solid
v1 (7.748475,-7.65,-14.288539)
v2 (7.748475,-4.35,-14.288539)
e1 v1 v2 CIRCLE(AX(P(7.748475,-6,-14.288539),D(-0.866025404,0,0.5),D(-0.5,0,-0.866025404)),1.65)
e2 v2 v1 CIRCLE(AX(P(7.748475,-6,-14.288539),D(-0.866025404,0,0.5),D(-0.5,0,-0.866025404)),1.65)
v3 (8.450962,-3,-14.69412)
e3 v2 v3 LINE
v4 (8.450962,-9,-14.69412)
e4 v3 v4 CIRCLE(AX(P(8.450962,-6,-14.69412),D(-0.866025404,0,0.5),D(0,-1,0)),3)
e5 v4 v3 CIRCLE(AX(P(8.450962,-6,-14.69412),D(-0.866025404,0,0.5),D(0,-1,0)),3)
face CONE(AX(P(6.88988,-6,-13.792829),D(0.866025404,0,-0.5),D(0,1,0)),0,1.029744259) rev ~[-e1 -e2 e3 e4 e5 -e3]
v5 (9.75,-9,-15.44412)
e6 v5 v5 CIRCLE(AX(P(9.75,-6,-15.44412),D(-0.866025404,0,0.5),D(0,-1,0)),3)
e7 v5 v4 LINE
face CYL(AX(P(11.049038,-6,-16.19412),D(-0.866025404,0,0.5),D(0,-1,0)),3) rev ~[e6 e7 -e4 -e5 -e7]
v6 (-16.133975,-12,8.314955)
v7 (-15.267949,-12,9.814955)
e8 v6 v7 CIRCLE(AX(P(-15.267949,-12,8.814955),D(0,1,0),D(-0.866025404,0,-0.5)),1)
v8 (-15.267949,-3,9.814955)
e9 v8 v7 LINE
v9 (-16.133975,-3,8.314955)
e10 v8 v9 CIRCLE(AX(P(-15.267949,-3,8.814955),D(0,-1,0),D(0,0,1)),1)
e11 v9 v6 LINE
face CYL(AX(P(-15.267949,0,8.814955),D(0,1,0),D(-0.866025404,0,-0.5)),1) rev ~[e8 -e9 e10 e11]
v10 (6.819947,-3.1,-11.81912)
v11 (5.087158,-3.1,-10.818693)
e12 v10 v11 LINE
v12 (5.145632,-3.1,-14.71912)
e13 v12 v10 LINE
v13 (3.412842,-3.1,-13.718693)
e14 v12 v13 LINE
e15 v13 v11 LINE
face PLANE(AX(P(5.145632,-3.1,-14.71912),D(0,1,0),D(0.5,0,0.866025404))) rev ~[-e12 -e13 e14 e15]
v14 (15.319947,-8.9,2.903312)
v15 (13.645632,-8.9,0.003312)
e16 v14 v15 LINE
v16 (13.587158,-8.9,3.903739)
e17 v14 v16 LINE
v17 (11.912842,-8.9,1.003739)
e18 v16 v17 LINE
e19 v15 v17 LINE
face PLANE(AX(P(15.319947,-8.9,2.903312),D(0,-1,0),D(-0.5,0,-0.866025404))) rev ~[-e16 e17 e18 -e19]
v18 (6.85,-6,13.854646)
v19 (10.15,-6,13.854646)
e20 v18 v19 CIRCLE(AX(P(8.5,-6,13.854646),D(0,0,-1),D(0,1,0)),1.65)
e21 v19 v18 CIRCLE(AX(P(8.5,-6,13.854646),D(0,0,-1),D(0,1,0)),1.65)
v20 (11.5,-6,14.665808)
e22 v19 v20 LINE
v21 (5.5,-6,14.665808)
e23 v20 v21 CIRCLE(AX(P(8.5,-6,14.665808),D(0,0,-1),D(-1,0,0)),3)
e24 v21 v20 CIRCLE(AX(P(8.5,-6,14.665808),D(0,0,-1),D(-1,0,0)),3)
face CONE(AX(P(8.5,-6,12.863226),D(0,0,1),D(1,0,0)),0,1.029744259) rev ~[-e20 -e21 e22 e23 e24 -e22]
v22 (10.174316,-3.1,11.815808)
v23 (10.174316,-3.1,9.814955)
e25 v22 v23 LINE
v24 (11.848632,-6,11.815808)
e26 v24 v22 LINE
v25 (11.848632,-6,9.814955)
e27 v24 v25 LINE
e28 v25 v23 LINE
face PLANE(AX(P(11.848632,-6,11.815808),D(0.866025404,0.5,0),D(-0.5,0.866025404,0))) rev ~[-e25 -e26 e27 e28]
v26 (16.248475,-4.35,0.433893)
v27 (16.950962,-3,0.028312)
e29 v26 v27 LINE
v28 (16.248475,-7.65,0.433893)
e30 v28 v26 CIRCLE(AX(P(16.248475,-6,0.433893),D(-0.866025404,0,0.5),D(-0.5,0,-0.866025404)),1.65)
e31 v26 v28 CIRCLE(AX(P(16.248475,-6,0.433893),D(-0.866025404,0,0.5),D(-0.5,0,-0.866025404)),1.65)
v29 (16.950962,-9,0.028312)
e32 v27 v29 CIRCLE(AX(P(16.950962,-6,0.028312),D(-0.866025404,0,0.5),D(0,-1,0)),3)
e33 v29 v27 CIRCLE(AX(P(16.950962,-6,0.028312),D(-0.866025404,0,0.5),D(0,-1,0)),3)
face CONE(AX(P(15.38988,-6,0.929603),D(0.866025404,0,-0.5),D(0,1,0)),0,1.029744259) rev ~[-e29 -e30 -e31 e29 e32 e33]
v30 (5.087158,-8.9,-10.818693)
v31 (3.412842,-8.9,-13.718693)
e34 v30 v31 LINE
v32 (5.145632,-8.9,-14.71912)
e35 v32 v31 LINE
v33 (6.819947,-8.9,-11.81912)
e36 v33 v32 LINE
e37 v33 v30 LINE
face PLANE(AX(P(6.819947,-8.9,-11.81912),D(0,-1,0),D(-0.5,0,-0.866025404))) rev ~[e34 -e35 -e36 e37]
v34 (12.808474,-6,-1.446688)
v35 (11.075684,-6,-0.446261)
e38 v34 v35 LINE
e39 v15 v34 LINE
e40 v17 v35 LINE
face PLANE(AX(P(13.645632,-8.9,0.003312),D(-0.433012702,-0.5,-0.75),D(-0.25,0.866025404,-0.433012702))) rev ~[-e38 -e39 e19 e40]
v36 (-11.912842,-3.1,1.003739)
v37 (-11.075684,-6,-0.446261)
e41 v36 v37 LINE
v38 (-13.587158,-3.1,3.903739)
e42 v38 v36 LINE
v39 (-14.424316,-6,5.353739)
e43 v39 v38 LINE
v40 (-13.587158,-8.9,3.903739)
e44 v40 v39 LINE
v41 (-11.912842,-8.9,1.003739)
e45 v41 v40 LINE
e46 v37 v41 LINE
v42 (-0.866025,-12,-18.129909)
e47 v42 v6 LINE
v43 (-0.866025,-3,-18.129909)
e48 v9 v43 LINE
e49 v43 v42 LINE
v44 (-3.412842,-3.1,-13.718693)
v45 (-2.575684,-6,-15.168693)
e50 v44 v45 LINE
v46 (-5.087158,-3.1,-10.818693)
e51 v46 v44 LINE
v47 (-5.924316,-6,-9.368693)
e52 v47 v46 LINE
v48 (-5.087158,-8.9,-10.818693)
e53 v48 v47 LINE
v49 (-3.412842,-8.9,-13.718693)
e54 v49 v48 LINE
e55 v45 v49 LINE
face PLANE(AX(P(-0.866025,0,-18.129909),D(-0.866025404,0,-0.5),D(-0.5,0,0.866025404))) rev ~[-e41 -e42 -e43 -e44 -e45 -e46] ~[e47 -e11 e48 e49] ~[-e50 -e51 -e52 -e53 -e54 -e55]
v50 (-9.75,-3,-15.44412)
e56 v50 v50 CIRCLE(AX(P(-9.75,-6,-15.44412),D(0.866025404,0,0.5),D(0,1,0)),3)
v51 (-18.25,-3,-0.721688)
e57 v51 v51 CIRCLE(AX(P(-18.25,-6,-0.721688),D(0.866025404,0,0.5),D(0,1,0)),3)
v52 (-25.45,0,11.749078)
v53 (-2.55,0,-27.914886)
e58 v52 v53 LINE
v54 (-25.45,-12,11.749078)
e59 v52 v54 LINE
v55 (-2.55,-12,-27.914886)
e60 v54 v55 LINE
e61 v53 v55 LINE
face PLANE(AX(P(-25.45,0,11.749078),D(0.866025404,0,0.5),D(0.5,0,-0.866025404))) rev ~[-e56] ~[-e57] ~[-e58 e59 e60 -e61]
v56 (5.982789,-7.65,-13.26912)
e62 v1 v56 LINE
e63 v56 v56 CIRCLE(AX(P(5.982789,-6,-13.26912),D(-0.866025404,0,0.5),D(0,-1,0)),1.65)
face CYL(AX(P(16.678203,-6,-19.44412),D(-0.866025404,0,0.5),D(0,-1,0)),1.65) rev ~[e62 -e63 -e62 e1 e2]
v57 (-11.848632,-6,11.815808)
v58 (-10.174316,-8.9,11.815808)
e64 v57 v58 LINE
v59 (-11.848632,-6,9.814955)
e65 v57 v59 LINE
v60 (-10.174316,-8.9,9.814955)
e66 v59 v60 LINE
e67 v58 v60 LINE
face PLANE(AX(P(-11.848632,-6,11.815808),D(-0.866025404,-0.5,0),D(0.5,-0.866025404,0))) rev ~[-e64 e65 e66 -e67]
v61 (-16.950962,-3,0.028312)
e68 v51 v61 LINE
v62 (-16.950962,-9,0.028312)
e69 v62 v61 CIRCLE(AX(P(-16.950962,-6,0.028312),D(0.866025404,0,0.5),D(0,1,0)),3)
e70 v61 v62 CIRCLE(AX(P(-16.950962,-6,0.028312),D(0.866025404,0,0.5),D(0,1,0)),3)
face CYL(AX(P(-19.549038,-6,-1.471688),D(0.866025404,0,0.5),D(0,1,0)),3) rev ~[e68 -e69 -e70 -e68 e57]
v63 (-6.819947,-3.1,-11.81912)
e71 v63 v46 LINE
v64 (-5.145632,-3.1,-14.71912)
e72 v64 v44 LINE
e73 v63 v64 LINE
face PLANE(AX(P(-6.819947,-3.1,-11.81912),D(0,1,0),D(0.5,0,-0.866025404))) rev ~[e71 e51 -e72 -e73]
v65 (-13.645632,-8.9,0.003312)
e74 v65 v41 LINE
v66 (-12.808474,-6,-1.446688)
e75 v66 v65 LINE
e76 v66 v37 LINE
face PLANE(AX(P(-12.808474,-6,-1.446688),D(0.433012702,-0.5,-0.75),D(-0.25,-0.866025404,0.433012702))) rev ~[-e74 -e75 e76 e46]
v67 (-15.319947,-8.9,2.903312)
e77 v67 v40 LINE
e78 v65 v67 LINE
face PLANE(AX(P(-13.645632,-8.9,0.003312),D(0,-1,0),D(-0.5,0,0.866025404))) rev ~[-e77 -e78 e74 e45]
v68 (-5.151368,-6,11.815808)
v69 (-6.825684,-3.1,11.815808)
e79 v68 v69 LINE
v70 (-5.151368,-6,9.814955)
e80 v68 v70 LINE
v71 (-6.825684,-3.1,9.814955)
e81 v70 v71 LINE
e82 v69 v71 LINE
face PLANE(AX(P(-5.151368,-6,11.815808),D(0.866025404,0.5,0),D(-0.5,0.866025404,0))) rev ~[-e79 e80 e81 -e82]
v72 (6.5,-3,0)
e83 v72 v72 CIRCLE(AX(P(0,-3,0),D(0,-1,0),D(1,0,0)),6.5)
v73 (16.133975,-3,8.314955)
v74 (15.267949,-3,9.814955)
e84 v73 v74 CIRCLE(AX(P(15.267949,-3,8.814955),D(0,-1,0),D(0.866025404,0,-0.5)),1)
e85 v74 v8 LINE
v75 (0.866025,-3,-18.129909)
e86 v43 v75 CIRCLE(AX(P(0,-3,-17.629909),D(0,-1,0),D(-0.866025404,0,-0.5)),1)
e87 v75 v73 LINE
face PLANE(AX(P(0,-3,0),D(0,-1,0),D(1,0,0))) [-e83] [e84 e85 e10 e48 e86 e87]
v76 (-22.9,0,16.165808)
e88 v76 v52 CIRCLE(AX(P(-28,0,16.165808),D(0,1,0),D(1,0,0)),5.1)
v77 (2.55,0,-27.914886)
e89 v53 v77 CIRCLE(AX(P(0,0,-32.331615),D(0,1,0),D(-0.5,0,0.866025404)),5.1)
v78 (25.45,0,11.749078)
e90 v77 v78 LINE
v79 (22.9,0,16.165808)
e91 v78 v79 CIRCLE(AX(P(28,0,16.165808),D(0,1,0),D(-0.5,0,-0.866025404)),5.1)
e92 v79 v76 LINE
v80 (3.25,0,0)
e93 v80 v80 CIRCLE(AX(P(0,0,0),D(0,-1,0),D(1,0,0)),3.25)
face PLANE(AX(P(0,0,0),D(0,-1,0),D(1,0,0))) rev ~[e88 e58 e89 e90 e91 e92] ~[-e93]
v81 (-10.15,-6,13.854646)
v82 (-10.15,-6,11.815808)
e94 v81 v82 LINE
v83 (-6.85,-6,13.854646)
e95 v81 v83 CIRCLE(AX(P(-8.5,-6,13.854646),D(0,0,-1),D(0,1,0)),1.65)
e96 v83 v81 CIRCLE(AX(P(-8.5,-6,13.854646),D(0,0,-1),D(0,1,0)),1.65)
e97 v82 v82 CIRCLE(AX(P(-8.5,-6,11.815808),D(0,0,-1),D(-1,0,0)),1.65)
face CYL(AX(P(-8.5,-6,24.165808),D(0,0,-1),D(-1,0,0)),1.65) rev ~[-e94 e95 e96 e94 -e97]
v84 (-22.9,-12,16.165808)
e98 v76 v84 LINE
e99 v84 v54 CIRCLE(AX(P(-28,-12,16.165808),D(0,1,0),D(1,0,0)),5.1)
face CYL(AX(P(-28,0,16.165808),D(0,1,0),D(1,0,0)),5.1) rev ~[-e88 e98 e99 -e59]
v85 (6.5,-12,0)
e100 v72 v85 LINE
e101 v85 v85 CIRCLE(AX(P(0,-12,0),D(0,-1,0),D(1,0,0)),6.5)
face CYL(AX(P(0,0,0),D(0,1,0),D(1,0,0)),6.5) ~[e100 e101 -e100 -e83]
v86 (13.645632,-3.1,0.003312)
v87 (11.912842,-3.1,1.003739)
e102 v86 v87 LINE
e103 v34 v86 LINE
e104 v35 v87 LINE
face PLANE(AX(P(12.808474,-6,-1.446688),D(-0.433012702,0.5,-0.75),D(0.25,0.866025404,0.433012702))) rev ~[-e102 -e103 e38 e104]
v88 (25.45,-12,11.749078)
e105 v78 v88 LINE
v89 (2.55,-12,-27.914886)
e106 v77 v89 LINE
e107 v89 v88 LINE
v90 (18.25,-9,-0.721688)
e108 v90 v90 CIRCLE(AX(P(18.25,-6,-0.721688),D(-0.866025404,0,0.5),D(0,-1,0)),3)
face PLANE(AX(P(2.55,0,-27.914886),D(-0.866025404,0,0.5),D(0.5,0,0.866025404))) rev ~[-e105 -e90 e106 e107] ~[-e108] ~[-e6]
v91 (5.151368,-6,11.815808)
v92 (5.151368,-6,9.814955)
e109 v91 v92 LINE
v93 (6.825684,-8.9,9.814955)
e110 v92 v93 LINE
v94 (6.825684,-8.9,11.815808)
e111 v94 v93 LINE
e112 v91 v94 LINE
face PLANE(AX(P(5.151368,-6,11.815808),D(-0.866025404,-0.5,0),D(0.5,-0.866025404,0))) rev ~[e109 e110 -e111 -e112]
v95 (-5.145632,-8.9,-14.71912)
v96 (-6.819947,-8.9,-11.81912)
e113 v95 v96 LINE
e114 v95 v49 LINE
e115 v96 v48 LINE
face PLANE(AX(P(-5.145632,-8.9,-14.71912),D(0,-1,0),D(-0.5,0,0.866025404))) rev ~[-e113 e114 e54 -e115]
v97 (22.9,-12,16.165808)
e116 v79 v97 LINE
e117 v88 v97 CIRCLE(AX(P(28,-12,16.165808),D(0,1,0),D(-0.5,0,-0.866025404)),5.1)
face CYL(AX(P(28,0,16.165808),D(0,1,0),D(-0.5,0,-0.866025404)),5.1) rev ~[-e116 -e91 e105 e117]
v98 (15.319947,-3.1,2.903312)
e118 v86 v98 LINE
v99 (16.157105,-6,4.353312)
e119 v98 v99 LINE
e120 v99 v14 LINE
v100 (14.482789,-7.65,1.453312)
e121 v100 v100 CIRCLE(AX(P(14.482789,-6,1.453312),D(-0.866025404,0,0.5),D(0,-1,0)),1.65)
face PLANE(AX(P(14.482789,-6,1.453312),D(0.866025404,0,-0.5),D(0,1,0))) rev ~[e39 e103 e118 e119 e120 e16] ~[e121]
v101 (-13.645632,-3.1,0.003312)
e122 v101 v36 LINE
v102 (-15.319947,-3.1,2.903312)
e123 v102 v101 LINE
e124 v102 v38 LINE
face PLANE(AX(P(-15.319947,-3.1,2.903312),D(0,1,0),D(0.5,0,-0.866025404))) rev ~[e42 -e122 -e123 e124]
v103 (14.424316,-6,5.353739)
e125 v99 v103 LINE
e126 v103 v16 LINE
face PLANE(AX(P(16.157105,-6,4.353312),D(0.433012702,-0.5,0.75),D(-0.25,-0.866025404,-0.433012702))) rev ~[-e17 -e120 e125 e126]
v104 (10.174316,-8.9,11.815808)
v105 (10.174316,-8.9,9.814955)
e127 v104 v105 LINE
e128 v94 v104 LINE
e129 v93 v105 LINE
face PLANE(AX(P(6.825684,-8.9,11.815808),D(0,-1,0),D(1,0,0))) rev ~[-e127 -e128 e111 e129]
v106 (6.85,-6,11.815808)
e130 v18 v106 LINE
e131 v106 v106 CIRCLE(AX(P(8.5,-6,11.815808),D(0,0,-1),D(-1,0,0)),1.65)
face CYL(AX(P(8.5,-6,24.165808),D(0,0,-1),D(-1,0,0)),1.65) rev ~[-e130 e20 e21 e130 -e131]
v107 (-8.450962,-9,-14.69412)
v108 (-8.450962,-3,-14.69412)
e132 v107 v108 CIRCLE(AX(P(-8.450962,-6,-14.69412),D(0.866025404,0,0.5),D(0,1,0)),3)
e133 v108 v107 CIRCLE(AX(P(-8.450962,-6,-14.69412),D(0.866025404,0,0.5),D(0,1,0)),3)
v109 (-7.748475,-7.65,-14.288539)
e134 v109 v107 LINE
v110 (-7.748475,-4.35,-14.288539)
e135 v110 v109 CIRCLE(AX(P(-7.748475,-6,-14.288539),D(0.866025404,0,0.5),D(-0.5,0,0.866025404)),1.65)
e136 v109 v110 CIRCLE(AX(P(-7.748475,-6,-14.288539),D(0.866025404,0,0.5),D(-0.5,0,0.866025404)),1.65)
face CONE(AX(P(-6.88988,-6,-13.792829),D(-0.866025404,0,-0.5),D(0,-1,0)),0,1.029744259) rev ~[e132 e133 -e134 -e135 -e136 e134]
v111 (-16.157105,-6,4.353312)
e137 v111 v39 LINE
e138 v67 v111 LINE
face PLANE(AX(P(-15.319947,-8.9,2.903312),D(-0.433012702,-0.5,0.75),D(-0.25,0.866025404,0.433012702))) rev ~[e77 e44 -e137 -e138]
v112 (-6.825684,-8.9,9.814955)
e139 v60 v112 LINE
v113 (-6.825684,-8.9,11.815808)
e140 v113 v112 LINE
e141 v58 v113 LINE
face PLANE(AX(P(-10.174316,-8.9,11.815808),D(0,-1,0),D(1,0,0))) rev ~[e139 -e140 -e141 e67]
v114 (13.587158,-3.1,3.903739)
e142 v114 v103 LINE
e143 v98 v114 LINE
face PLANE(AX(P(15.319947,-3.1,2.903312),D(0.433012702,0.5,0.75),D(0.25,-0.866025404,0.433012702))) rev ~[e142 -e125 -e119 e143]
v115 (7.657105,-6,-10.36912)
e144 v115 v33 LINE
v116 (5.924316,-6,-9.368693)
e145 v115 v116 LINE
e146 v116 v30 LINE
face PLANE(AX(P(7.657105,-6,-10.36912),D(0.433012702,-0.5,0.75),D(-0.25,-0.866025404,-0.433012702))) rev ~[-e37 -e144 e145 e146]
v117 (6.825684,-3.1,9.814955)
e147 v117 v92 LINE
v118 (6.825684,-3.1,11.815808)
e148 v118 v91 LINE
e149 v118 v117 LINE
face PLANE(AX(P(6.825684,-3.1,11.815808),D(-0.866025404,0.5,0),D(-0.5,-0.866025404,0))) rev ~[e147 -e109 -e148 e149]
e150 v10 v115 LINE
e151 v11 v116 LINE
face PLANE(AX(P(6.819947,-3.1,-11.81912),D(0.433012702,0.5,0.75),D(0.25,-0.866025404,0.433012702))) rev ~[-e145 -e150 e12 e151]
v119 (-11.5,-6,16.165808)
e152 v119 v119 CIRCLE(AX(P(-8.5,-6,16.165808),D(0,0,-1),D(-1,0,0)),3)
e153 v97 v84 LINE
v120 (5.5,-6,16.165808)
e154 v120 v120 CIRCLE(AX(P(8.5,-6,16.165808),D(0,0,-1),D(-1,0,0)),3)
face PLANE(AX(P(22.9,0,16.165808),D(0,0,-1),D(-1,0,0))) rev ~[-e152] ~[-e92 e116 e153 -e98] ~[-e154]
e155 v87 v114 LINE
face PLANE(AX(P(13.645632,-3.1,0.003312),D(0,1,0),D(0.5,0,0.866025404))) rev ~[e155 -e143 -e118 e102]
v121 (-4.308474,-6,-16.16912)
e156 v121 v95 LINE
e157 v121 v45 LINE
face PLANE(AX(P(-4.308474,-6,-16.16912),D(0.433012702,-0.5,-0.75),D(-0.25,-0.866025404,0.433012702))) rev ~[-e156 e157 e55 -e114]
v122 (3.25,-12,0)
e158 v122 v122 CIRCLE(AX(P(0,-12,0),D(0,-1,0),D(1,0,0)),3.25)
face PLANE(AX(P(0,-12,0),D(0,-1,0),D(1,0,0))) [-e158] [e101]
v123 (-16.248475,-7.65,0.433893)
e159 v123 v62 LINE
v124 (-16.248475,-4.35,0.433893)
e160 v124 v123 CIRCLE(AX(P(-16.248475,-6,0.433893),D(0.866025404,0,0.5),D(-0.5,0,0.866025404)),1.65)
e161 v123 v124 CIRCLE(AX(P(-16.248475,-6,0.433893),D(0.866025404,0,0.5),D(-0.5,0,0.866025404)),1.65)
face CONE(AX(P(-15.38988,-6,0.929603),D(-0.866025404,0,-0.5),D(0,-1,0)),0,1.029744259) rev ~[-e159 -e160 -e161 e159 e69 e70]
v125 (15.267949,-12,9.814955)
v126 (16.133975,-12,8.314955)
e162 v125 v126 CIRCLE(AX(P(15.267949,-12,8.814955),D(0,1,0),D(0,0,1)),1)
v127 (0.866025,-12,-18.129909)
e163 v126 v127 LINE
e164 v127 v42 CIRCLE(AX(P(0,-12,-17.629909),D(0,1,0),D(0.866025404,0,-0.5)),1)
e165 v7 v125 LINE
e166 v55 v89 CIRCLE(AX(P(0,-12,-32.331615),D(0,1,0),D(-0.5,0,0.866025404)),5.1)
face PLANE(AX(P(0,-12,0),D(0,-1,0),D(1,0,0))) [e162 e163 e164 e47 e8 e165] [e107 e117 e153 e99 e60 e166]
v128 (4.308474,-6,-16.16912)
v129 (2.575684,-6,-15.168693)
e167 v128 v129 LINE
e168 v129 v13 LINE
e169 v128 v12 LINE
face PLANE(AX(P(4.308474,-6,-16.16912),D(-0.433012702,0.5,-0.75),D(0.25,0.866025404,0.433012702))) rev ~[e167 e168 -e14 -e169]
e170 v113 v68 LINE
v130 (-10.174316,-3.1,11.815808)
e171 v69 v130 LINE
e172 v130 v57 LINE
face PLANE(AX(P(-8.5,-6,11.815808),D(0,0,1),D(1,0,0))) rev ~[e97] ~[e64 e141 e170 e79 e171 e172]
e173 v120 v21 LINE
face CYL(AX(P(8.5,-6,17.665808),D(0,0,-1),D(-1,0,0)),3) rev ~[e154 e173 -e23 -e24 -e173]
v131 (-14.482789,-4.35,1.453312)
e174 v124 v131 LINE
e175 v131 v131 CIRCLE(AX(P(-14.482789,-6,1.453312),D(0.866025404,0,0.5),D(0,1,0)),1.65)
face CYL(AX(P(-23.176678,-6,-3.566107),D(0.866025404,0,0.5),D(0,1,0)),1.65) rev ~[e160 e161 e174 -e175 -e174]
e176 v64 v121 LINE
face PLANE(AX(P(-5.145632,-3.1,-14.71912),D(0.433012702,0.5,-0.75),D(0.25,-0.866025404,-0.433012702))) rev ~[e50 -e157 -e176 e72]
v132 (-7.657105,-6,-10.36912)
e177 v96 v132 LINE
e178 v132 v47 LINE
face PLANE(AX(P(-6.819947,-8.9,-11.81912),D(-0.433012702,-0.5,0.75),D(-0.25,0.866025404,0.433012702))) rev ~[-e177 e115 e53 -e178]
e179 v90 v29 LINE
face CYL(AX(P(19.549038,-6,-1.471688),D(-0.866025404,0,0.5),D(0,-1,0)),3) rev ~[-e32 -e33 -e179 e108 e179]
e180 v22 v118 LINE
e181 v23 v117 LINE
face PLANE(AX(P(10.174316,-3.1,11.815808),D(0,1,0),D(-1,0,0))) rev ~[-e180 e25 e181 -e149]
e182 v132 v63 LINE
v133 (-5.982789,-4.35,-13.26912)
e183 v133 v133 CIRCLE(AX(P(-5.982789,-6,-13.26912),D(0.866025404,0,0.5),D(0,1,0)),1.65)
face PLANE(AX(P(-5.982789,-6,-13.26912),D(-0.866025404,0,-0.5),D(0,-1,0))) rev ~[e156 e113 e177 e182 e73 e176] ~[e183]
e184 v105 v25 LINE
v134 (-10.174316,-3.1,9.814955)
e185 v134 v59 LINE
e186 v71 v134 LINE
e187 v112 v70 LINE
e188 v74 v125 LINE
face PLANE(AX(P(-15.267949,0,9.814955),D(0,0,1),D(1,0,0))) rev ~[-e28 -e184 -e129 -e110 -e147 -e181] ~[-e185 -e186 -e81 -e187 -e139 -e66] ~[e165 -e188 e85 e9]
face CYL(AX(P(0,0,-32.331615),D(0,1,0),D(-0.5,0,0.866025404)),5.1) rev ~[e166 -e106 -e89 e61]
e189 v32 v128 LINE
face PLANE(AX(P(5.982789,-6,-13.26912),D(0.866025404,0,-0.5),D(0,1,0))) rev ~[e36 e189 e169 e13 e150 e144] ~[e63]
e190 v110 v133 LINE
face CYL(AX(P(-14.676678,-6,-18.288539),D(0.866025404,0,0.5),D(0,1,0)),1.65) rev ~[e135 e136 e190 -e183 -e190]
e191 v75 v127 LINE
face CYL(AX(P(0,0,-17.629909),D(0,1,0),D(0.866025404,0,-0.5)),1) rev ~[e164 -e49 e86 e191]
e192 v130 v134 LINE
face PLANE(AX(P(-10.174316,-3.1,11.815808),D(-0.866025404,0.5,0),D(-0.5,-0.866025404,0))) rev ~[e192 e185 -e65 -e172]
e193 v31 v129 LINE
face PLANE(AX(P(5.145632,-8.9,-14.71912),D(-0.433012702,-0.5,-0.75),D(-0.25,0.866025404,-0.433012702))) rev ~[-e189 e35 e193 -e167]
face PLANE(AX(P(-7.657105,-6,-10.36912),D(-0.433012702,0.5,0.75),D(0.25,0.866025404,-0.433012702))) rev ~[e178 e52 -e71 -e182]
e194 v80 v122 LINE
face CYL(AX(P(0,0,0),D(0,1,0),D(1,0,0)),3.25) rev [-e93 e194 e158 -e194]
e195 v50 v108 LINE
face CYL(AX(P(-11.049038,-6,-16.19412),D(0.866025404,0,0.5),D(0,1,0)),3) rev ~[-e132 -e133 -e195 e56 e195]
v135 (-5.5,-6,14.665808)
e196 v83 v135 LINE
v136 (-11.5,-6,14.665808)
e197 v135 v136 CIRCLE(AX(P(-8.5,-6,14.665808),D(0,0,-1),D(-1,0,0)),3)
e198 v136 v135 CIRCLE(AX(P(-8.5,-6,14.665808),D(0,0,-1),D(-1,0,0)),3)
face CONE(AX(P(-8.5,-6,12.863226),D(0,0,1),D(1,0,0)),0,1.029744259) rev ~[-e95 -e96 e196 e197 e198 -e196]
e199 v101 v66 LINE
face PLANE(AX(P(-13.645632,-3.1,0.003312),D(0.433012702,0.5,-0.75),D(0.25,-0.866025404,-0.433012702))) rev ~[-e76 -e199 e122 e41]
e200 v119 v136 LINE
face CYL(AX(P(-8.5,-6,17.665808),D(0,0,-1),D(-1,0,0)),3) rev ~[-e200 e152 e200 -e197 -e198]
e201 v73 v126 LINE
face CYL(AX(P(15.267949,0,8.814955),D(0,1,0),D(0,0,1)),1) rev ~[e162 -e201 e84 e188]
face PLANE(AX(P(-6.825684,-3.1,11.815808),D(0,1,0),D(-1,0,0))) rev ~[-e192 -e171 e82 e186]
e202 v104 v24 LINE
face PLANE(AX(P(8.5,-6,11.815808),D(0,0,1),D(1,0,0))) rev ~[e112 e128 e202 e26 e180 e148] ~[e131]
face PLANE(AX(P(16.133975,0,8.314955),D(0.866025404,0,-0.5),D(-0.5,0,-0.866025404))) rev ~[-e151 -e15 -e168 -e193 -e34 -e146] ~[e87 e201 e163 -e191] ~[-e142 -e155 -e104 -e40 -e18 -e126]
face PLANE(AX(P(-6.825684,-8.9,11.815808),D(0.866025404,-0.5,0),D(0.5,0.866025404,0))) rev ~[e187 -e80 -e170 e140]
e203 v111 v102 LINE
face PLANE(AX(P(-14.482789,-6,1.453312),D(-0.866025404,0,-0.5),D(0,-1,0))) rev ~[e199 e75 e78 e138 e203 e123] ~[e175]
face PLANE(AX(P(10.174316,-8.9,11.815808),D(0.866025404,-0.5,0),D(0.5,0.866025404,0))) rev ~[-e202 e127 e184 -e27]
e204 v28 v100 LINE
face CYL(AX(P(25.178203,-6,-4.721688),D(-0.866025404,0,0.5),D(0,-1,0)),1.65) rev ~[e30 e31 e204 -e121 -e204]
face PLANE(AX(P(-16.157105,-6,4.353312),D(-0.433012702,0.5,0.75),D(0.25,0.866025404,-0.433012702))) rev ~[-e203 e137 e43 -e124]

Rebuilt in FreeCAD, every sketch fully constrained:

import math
import FreeCAD as App
import Part
import Sketcher
Q = App.Units.Quantity

doc = App.newDocument("Part")
params = doc.addObject("Spreadsheet::Sheet", "Params")
for row, (alias, value) in enumerate([
    ("sketch1_radius", "1 mm"),
    ("sketch1_radius2", "5.1 mm"),
    ("sketch1_width", "45.8 mm"),
    ("sketch1_length", "45.8 mm"),
    ("pad1_length", "12 mm"),
    ("sketch2_diameter", "13 mm"),
    ("sketch2_diameter2", "6.5 mm"),
    ("pad2_length", "12 mm"),
    ("sketch3_diameter", "13 mm"),
    ("sketch3_radius", "1 mm"),
    ("pad3_length", "3 mm"),
    ("pocket1_length", "3.65 mm"),
    ("sketch5_diameter", "3.3 mm"),
    ("hole_diameter", "3.3 mm"),
    ("hole_depth", "8 mm"),
    ("sketch6_diameter", "6 mm"),
    ("hole2_diameter", "6 mm"),
    ("hole2_depth", "1.5 mm"),
    ("pocket2_length", "3.65 mm"),
    ("sketch8_diameter", "6 mm"),
    ("hole3_diameter", "6 mm"),
    ("hole3_depth", "1.5 mm"),
    ("sketch9_diameter", "3.3 mm"),
    ("hole4_diameter", "3.3 mm"),
    ("hole4_depth", "8 mm"),
    ("pocket3_length", "3.65 mm"),
    ("sketch11_diameter", "3.3 mm"),
    ("hole5_diameter", "3.3 mm"),
    ("hole5_depth", "8 mm"),
    ("sketch12_diameter", "6 mm"),
    ("hole6_diameter", "6 mm"),
    ("hole6_depth", "1.5 mm"),
], start=1):
    params.set(f"A{row}", alias)
    params.set(f"B{row}", "=" + value)
    params.setAlias(f"B{row}", alias)

body = doc.addObject("PartDesign::Body", "Body")

# Sketch on XZ plane
sketch1 = body.newObject("Sketcher::SketchObject", "Sketch")
sketch1.AttachmentSupport = (doc.getObject("XZ_Plane"), [""])
sketch1.MapMode = "FlatFace"
sketch1.addGeometry([
    Part.ArcOfCircle(Part.Circle(App.Vector(28, 16.2, 0), App.Vector(0, 0, 1), 5.1), math.radians(180), math.radians(240)),  # 0
    Part.LineSegment(App.Vector(22.9, 16.2, 0), App.Vector(-22.9, 16.2, 0)),  # 1
    Part.ArcOfCircle(Part.Circle(App.Vector(-28, 16.2, 0), App.Vector(0, 0, 1), 5.1), math.radians(-60), math.radians(0)),  # 2
    Part.LineSegment(App.Vector(-25.4, 11.7, 0), App.Vector(-2.5, -27.9, 0)),  # 3
    Part.ArcOfCircle(Part.Circle(App.Vector(0, -32.3, 0), App.Vector(0, 0, 1), 5.1), math.radians(60), math.radians(120)),  # 4
    Part.LineSegment(App.Vector(2.5, -27.9, 0), App.Vector(25.4, 11.7, 0)),  # 5
    Part.LineSegment(App.Vector(-15.3, 9.8, 0), App.Vector(15.3, 9.8, 0)),  # 6
    Part.ArcOfCircle(Part.Circle(App.Vector(15.3, 8.8, 0), App.Vector(0, 0, 1), 1), math.radians(-30), math.radians(90)),  # 7
    Part.LineSegment(App.Vector(16.1, 8.3, 0), App.Vector(0.9, -18.1, 0)),  # 8
    Part.ArcOfCircle(Part.Circle(App.Vector(0, -17.6, 0), App.Vector(0, 0, 1), 1), math.radians(-150), math.radians(-30)),  # 9
    Part.LineSegment(App.Vector(-0.9, -18.1, 0), App.Vector(-16.1, 8.3, 0)),  # 10
    Part.ArcOfCircle(Part.Circle(App.Vector(-15.3, 8.8, 0), App.Vector(0, 0, 1), 1), math.radians(90), math.radians(210)),  # 11
], False)
sketch1.addConstraint([
    Sketcher.Constraint("Coincident", 0, 1, 1, 1),
    Sketcher.Constraint("Coincident", 1, 2, 2, 2),
    Sketcher.Constraint("Coincident", 2, 1, 3, 1),
    Sketcher.Constraint("Coincident", 3, 2, 4, 2),
    Sketcher.Constraint("Coincident", 4, 1, 5, 1),
    Sketcher.Constraint("Coincident", 5, 2, 0, 2),
    Sketcher.Constraint("Tangent", 6, 2, 7, 2),
    Sketcher.Constraint("Tangent", 7, 1, 8, 1),
    Sketcher.Constraint("Tangent", 8, 2, 9, 2),
    Sketcher.Constraint("Tangent", 9, 1, 10, 1),
    Sketcher.Constraint("Tangent", 10, 2, 11, 2),
    Sketcher.Constraint("Tangent", 11, 1, 6, 1),
    Sketcher.Constraint("Horizontal", 1),
    Sketcher.Constraint("Horizontal", 6),
    Sketcher.Constraint("Equal", 0, 2),
    Sketcher.Constraint("Equal", 2, 4),
    Sketcher.Constraint("Equal", 7, 9),
    Sketcher.Constraint("Equal", 9, 11),
    Sketcher.Constraint("Symmetric", 0, 3, 2, 3, -2),
    Sketcher.Constraint("Symmetric", 3, 2, 4, 1, -2),
    Sketcher.Constraint("Symmetric", 8, 2, 9, 1, -2),
    Sketcher.Constraint("Parallel", 5, 8),
    Sketcher.Constraint("Parallel", 3, 10),
    Sketcher.Constraint("Horizontal", 2, 3, 0, 1),
    Sketcher.Constraint("Radius", 7, Q("1 mm")),
    Sketcher.Constraint("Radius", 0, Q("5.1 mm")),
    Sketcher.Constraint("Angle", 3, Q("-60 deg")),
    Sketcher.Constraint("DistanceX", 1, 2, 1, 1, Q("45.8 mm")),
    Sketcher.Constraint("Distance", 3, Q("45.8 mm")),
    Sketcher.Constraint("DistanceX", 3, 2, 4, 1, Q("5.1 mm")),
    Sketcher.Constraint("DistanceX", 6, 1, 6, 2, Q("30.535898 mm")),
    Sketcher.Constraint("DistanceY", 9, 3, -1, 1, Q("17.629909 mm")),
    Sketcher.Constraint("DistanceY", 4, 3, 7, 3, Q("41.14657 mm")),
])
sketch1.setExpression("Constraints[24]", "Params.sketch1_radius")
sketch1.setExpression("Constraints[25]", "Params.sketch1_radius2")
sketch1.setExpression("Constraints[27]", "Params.sketch1_width")
sketch1.setExpression("Constraints[28]", "Params.sketch1_length")
pad1 = body.newObject("PartDesign::Pad", "Pad")
pad1.Profile = sketch1
pad1.setExpression("Length", "Params.pad1_length")
body2 = doc.addObject("PartDesign::Body", "Body001")

# Sketch on XZ plane
sketch2 = body2.newObject("Sketcher::SketchObject", "Sketch001")
sketch2.AttachmentSupport = (doc.getObject("XZ_Plane001"), [""])
sketch2.MapMode = "FlatFace"
sketch2.addGeometry([
    Part.Circle(App.Vector(0, 0, 0), App.Vector(0, 0, 1), 6.5),
    Part.Circle(App.Vector(0, 0, 0), App.Vector(0, 0, 1), 3.2),
], False)
sketch2.addConstraint([
    Sketcher.Constraint("Coincident", 0, 3, -1, 1),
    Sketcher.Constraint("Coincident", 1, 3, -1, 1),
    Sketcher.Constraint("Diameter", 0, Q("13 mm")),
    Sketcher.Constraint("Diameter", 1, Q("6.5 mm")),
])
sketch2.setExpression("Constraints[2]", "Params.sketch2_diameter")
sketch2.setExpression("Constraints[3]", "Params.sketch2_diameter2")
pad2 = body2.newObject("PartDesign::Pad", "Pad001")
pad2.Profile = sketch2
pad2.setExpression("Length", "Params.pad2_length")
body.AllowCompound = True
doc.recompute()

boolean = body.newObject("PartDesign::Boolean", "Boolean")
boolean.Type = "Fuse"
boolean.addObjects([body2])

# Sketch on XZ plane
sketch3 = body.newObject("Sketcher::SketchObject", "Sketch002")
sketch3.AttachmentSupport = (doc.getObject("XZ_Plane"), [""])
sketch3.MapMode = "FlatFace"
sketch3.addGeometry([
    Part.LineSegment(App.Vector(0.9, -18.1, 0), App.Vector(16.1, 8.3, 0)),  # 0
    Part.ArcOfCircle(Part.Circle(App.Vector(15.3, 8.8, 0), App.Vector(0, 0, 1), 1), math.radians(-30), math.radians(90)),  # 1
    Part.LineSegment(App.Vector(15.3, 9.8, 0), App.Vector(-15.3, 9.8, 0)),  # 2
    Part.ArcOfCircle(Part.Circle(App.Vector(-15.3, 8.8, 0), App.Vector(0, 0, 1), 1), math.radians(90), math.radians(210)),  # 3
    Part.LineSegment(App.Vector(-16.1, 8.3, 0), App.Vector(-0.9, -18.1, 0)),  # 4
    Part.ArcOfCircle(Part.Circle(App.Vector(0, -17.6, 0), App.Vector(0, 0, 1), 1), math.radians(-150), math.radians(-30)),  # 5
    Part.Circle(App.Vector(0, 0, 0), App.Vector(0, 0, 1), 6.5),  # 6
], False)
sketch3.addConstraint([
    Sketcher.Constraint("Tangent", 0, 2, 1, 1),
    Sketcher.Constraint("Tangent", 1, 2, 2, 1),
    Sketcher.Constraint("Tangent", 2, 2, 3, 1),
    Sketcher.Constraint("Tangent", 3, 2, 4, 1),
    Sketcher.Constraint("Tangent", 4, 2, 5, 1),
    Sketcher.Constraint("Tangent", 5, 2, 0, 1),
    Sketcher.Constraint("Horizontal", 2),
    Sketcher.Constraint("Coincident", 6, 3, -1, 1),
    Sketcher.Constraint("Equal", 1, 3),
    Sketcher.Constraint("Equal", 3, 5),
    Sketcher.Constraint("Symmetric", 0, 2, 3, 2, -2),
    Sketcher.Constraint("Diameter", 6, Q("13 mm")),
    Sketcher.Constraint("Radius", 1, Q("1 mm")),
    Sketcher.Constraint("Angle", 0, Q("60 deg")),
    Sketcher.Constraint("DistanceX", 2, 2, 2, 1, Q("30.535898 mm")),
    Sketcher.Constraint("DistanceY", 5, 3, -1, 1, Q("17.629909 mm")),
])
sketch3.setExpression("Constraints[11]", "Params.sketch3_diameter")
sketch3.setExpression("Constraints[12]", "Params.sketch3_radius")
pad3 = body.newObject("PartDesign::Pad", "Pad002")
pad3.Profile = sketch3
pad3.setExpression("Length", "Params.pad3_length")

# Sketch on XY plane
sketch4 = body.newObject("Sketcher::SketchObject", "Sketch003")
sketch4.AttachmentSupport = (doc.getObject("XY_Plane"), [""])
sketch4.MapMode = "FlatFace"
sketch4.AttachmentOffset = App.Placement(App.Vector(0, 0, 11.815808), App.Rotation())
sketch4.addGeometry([
    Part.LineSegment(App.Vector(-6.8, -8.9, 0), App.Vector(-5.2, -6, 0)),  # 0
    Part.LineSegment(App.Vector(-5.2, -6, 0), App.Vector(-6.8, -3.1, 0)),  # 1
    Part.LineSegment(App.Vector(-6.8, -3.1, 0), App.Vector(-10.2, -3.1, 0)),  # 2
    Part.LineSegment(App.Vector(-10.2, -3.1, 0), App.Vector(-11.8, -6, 0)),  # 3
    Part.LineSegment(App.Vector(-11.8, -6, 0), App.Vector(-10.2, -8.9, 0)),  # 4
    Part.LineSegment(App.Vector(-10.2, -8.9, 0), App.Vector(-6.8, -8.9, 0)),  # 5
    Part.LineSegment(App.Vector(10.2, -8.9, 0), App.Vector(11.8, -6, 0)),  # 6
    Part.LineSegment(App.Vector(11.8, -6, 0), App.Vector(10.2, -3.1, 0)),  # 7
    Part.LineSegment(App.Vector(10.2, -3.1, 0), App.Vector(6.8, -3.1, 0)),  # 8
    Part.LineSegment(App.Vector(6.8, -3.1, 0), App.Vector(5.2, -6, 0)),  # 9
    Part.LineSegment(App.Vector(5.2, -6, 0), App.Vector(6.8, -8.9, 0)),  # 10
    Part.LineSegment(App.Vector(6.8, -8.9, 0), App.Vector(10.2, -8.9, 0)),  # 11
], False)
sketch4.addConstraint([
    Sketcher.Constraint("Coincident", 0, 2, 1, 1),
    Sketcher.Constraint("Coincident", 1, 2, 2, 1),
    Sketcher.Constraint("Coincident", 2, 2, 3, 1),
    Sketcher.Constraint("Coincident", 3, 2, 4, 1),
    Sketcher.Constraint("Coincident", 4, 2, 5, 1),
    Sketcher.Constraint("Coincident", 5, 2, 0, 1),
    Sketcher.Constraint("Coincident", 6, 2, 7, 1),
    Sketcher.Constraint("Coincident", 7, 2, 8, 1),
    Sketcher.Constraint("Coincident", 8, 2, 9, 1),
    Sketcher.Constraint("Coincident", 9, 2, 10, 1),
    Sketcher.Constraint("Coincident", 10, 2, 11, 1),
    Sketcher.Constraint("Coincident", 11, 2, 6, 1),
    Sketcher.Constraint("Horizontal", 2),
    Sketcher.Constraint("Horizontal", 5),
    Sketcher.Constraint("Horizontal", 8),
    Sketcher.Constraint("Horizontal", 11),
    Sketcher.Constraint("Symmetric", 3, 2, 6, 2, -2),
    Sketcher.Constraint("Symmetric", 2, 2, 7, 2, -2),
    Sketcher.Constraint("Symmetric", 0, 2, 9, 2, -2),
    Sketcher.Constraint("Symmetric", 5, 2, 10, 2, -2),
    Sketcher.Constraint("Parallel", 0, 3),
    Sketcher.Constraint("Parallel", 1, 4),
    Sketcher.Constraint("Parallel", 3, 6),
    Sketcher.Constraint("Parallel", 4, 7),
    Sketcher.Constraint("Parallel", 6, 9),
    Sketcher.Constraint("Horizontal", 0, 2, 3, 2),
    Sketcher.Constraint("Vertical", 2, 2, 4, 2),
    Sketcher.Constraint("Angle", 0, Q("60 deg")),
    Sketcher.Constraint("DistanceY", 0, 2, -1, 1, Q("6 mm")),
    Sketcher.Constraint("DistanceX", 0, 2, 6, 2, Q("17 mm")),
    Sketcher.Constraint("DistanceY", 1, 2, -1, 1, Q("3.1 mm")),
    Sketcher.Constraint("DistanceX", 2, 2, 2, 1, Q("3.348632 mm")),
])
pocket1 = body.newObject("PartDesign::Pocket", "Pocket")
pocket1.Profile = sketch4
pocket1.setExpression("Length", "Params.pocket1_length")

# Sketch on XY plane
sketch5 = body.newObject("Sketcher::SketchObject", "Sketch004")
sketch5.AttachmentSupport = (doc.getObject("XY_Plane"), [""])
sketch5.MapMode = "FlatFace"
sketch5.AttachmentOffset = App.Placement(App.Vector(0, 0, 16.165808), App.Rotation())
sketch5.addGeometry([
    Part.Circle(App.Vector(8.5, -6, 0), App.Vector(0, 0, 1), 1.6),
    Part.Circle(App.Vector(-8.5, -6, 0), App.Vector(0, 0, 1), 1.6),
], False)
sketch5.addConstraint([
    Sketcher.Constraint("Equal", 0, 1),
    Sketcher.Constraint("Symmetric", 0, 3, 1, 3, -2),
    Sketcher.Constraint("Diameter", 0, Q("3.3 mm")),
    Sketcher.Constraint("DistanceY", 0, 3, -1, 1, Q("6 mm")),
    Sketcher.Constraint("DistanceX", 1, 3, 0, 3, Q("17 mm")),
])
sketch5.setExpression("Constraints[2]", "Params.sketch5_diameter")
doc.recompute()
hole = body.newObject("PartDesign::Hole", "Hole")
hole.Profile = sketch5
hole.ThreadType = "None"
hole.setExpression("Diameter", "Params.hole_diameter")
hole.DepthType = "Dimension"
hole.setExpression("Depth", "Params.hole_depth")
hole.DrillPoint = "Angled"
hole.DrillPointAngle = 118

# Sketch on XY plane
sketch6 = body.newObject("Sketcher::SketchObject", "Sketch005")
sketch6.AttachmentSupport = (doc.getObject("XY_Plane"), [""])
sketch6.MapMode = "FlatFace"
sketch6.AttachmentOffset = App.Placement(App.Vector(0, 0, 16.165808), App.Rotation())
sketch6.addGeometry([
    Part.Circle(App.Vector(8.5, -6, 0), App.Vector(0, 0, 1), 3),
    Part.Circle(App.Vector(-8.5, -6, 0), App.Vector(0, 0, 1), 3),
], False)
sketch6.addConstraint([
    Sketcher.Constraint("Equal", 0, 1),
    Sketcher.Constraint("Symmetric", 0, 3, 1, 3, -2),
    Sketcher.Constraint("Diameter", 0, Q("6 mm")),
    Sketcher.Constraint("DistanceY", 0, 3, -1, 1, Q("6 mm")),
    Sketcher.Constraint("DistanceX", 1, 3, 0, 3, Q("17 mm")),
])
sketch6.setExpression("Constraints[2]", "Params.sketch6_diameter")
doc.recompute()
hole2 = body.newObject("PartDesign::Hole", "Hole001")
hole2.Profile = sketch6
hole2.ThreadType = "None"
hole2.setExpression("Diameter", "Params.hole2_diameter")
hole2.DepthType = "Dimension"
hole2.setExpression("Depth", "Params.hole2_depth")
hole2.DrillPoint = "Angled"
hole2.DrillPointAngle = 118

# Sketch on an angled plane
sketch7 = body.newObject("Sketcher::SketchObject", "Sketch006")
sketch7.Placement = App.Placement(App.Vector(-10.232789, 0, -5.907904), App.Rotation(App.Vector(0, -1, 0), App.Vector(-0.5, 0, 0.866025404), App.Vector(-0.866025404, 0, -0.5), "ZXY"))
sketch7.addGeometry([
    Part.LineSegment(App.Vector(3.1, 6.8, 0), App.Vector(6, 5.2, 0)),  # 0
    Part.LineSegment(App.Vector(6, 5.2, 0), App.Vector(8.9, 6.8, 0)),  # 1
    Part.LineSegment(App.Vector(8.9, 6.8, 0), App.Vector(8.9, 10.2, 0)),  # 2
    Part.LineSegment(App.Vector(8.9, 10.2, 0), App.Vector(6, 11.8, 0)),  # 3
    Part.LineSegment(App.Vector(6, 11.8, 0), App.Vector(3.1, 10.2, 0)),  # 4
    Part.LineSegment(App.Vector(3.1, 10.2, 0), App.Vector(3.1, 6.8, 0)),  # 5
    Part.LineSegment(App.Vector(3.1, -10.2, 0), App.Vector(6, -11.8, 0)),  # 6
    Part.LineSegment(App.Vector(6, -11.8, 0), App.Vector(8.9, -10.2, 0)),  # 7
    Part.LineSegment(App.Vector(8.9, -10.2, 0), App.Vector(8.9, -6.8, 0)),  # 8
    Part.LineSegment(App.Vector(8.9, -6.8, 0), App.Vector(6, -5.2, 0)),  # 9
    Part.LineSegment(App.Vector(6, -5.2, 0), App.Vector(3.1, -6.8, 0)),  # 10
    Part.LineSegment(App.Vector(3.1, -6.8, 0), App.Vector(3.1, -10.2, 0)),  # 11
], False)
sketch7.addConstraint([
    Sketcher.Constraint("Coincident", 0, 2, 1, 1),
    Sketcher.Constraint("Coincident", 1, 2, 2, 1),
    Sketcher.Constraint("Coincident", 2, 2, 3, 1),
    Sketcher.Constraint("Coincident", 3, 2, 4, 1),
    Sketcher.Constraint("Coincident", 4, 2, 5, 1),
    Sketcher.Constraint("Coincident", 5, 2, 0, 1),
    Sketcher.Constraint("Coincident", 6, 2, 7, 1),
    Sketcher.Constraint("Coincident", 7, 2, 8, 1),
    Sketcher.Constraint("Coincident", 8, 2, 9, 1),
    Sketcher.Constraint("Coincident", 9, 2, 10, 1),
    Sketcher.Constraint("Coincident", 10, 2, 11, 1),
    Sketcher.Constraint("Coincident", 11, 2, 6, 1),
    Sketcher.Constraint("Vertical", 2),
    Sketcher.Constraint("Vertical", 5),
    Sketcher.Constraint("Vertical", 8),
    Sketcher.Constraint("Vertical", 11),
    Sketcher.Constraint("Symmetric", 3, 2, 6, 2, -1),
    Sketcher.Constraint("Symmetric", 2, 2, 7, 2, -1),
    Sketcher.Constraint("Symmetric", 0, 2, 9, 2, -1),
    Sketcher.Constraint("Symmetric", 5, 2, 10, 2, -1),
    Sketcher.Constraint("Parallel", 0, 3),
    Sketcher.Constraint("Parallel", 1, 4),
    Sketcher.Constraint("Parallel", 3, 6),
    Sketcher.Constraint("Parallel", 4, 7),
    Sketcher.Constraint("Parallel", 6, 9),
    Sketcher.Constraint("Horizontal", 2, 2, 4, 2),
    Sketcher.Constraint("Horizontal", 1, 2, 5, 2),
    Sketcher.Constraint("Angle", 0, Q("-30 deg")),
    Sketcher.Constraint("DistanceX", -1, 1, 0, 2, Q("6 mm")),
    Sketcher.Constraint("DistanceY", 6, 2, 0, 2, Q("17 mm")),
    Sketcher.Constraint("DistanceX", -1, 1, 1, 2, Q("8.9 mm")),
    Sketcher.Constraint("DistanceY", 2, 1, 2, 2, Q("3.348632 mm")),
])
pocket2 = body.newObject("PartDesign::Pocket", "Pocket001")
pocket2.Profile = sketch7
pocket2.setExpression("Length", "Params.pocket2_length")

# Sketch on an angled plane
sketch8 = body.newObject("Sketcher::SketchObject", "Sketch007")
sketch8.Placement = App.Placement(App.Vector(-14, 0, -8.082904), App.Rotation(App.Vector(0, -1, 0), App.Vector(-0.5, 0, 0.866025404), App.Vector(-0.866025404, 0, -0.5), "ZXY"))
sketch8.addGeometry([
    Part.Circle(App.Vector(6, 8.5, 0), App.Vector(0, 0, 1), 3),
    Part.Circle(App.Vector(6, -8.5, 0), App.Vector(0, 0, 1), 3),
], False)
sketch8.addConstraint([
    Sketcher.Constraint("Equal", 0, 1),
    Sketcher.Constraint("Symmetric", 0, 3, 1, 3, -1),
    Sketcher.Constraint("Diameter", 0, Q("6 mm")),
    Sketcher.Constraint("DistanceX", -1, 1, 0, 3, Q("6 mm")),
    Sketcher.Constraint("DistanceY", 1, 3, 0, 3, Q("17 mm")),
])
sketch8.setExpression("Constraints[2]", "Params.sketch8_diameter")
doc.recompute()
hole3 = body.newObject("PartDesign::Hole", "Hole002")
hole3.Profile = sketch8
hole3.ThreadType = "None"
hole3.setExpression("Diameter", "Params.hole3_diameter")
hole3.DepthType = "Dimension"
hole3.setExpression("Depth", "Params.hole3_depth")
hole3.DrillPoint = "Angled"
hole3.DrillPointAngle = 118

# Sketch on an angled plane
sketch9 = body.newObject("Sketcher::SketchObject", "Sketch008")
sketch9.Placement = App.Placement(App.Vector(-11.998475, 0, -6.927323), App.Rotation(App.Vector(0, -1, 0), App.Vector(-0.5, 0, 0.866025404), App.Vector(-0.866025404, 0, -0.5), "ZXY"))
sketch9.addGeometry([
    Part.Circle(App.Vector(6, 8.5, 0), App.Vector(0, 0, 1), 1.6),
    Part.Circle(App.Vector(6, -8.5, 0), App.Vector(0, 0, 1), 1.6),
], False)
sketch9.addConstraint([
    Sketcher.Constraint("Equal", 0, 1),
    Sketcher.Constraint("Symmetric", 0, 3, 1, 3, -1),
    Sketcher.Constraint("Diameter", 0, Q("3.3 mm")),
    Sketcher.Constraint("DistanceX", -1, 1, 0, 3, Q("6 mm")),
    Sketcher.Constraint("DistanceY", 1, 3, 0, 3, Q("17 mm")),
])
sketch9.setExpression("Constraints[2]", "Params.sketch9_diameter")
doc.recompute()
hole4 = body.newObject("PartDesign::Hole", "Hole003")
hole4.Profile = sketch9
hole4.ThreadType = "None"
hole4.setExpression("Diameter", "Params.hole4_diameter")
hole4.DepthType = "Dimension"
hole4.setExpression("Depth", "Params.hole4_depth")
hole4.DrillPoint = "Angled"
hole4.DrillPointAngle = 118

# Sketch on an angled plane
sketch10 = body.newObject("Sketcher::SketchObject", "Sketch009")
sketch10.Placement = App.Placement(App.Vector(10.232789, 0, -5.907904), App.Rotation(App.Vector(0, 1, 0), App.Vector(0.5, 0, 0.866025404), App.Vector(0.866025404, 0, -0.5), "ZXY"))
sketch10.addGeometry([
    Part.LineSegment(App.Vector(-3.1, -6.8, 0), App.Vector(-6, -5.2, 0)),  # 0
    Part.LineSegment(App.Vector(-6, -5.2, 0), App.Vector(-8.9, -6.8, 0)),  # 1
    Part.LineSegment(App.Vector(-8.9, -6.8, 0), App.Vector(-8.9, -10.2, 0)),  # 2
    Part.LineSegment(App.Vector(-8.9, -10.2, 0), App.Vector(-6, -11.8, 0)),  # 3
    Part.LineSegment(App.Vector(-6, -11.8, 0), App.Vector(-3.1, -10.2, 0)),  # 4
    Part.LineSegment(App.Vector(-3.1, -10.2, 0), App.Vector(-3.1, -6.8, 0)),  # 5
    Part.LineSegment(App.Vector(-3.1, 6.8, 0), App.Vector(-3.1, 10.2, 0)),  # 6
    Part.LineSegment(App.Vector(-3.1, 10.2, 0), App.Vector(-6, 11.8, 0)),  # 7
    Part.LineSegment(App.Vector(-6, 11.8, 0), App.Vector(-8.9, 10.2, 0)),  # 8
    Part.LineSegment(App.Vector(-8.9, 10.2, 0), App.Vector(-8.9, 6.8, 0)),  # 9
    Part.LineSegment(App.Vector(-8.9, 6.8, 0), App.Vector(-6, 5.2, 0)),  # 10
    Part.LineSegment(App.Vector(-6, 5.2, 0), App.Vector(-3.1, 6.8, 0)),  # 11
], False)
sketch10.addConstraint([
    Sketcher.Constraint("Coincident", 0, 2, 1, 1),
    Sketcher.Constraint("Coincident", 1, 2, 2, 1),
    Sketcher.Constraint("Coincident", 2, 2, 3, 1),
    Sketcher.Constraint("Coincident", 3, 2, 4, 1),
    Sketcher.Constraint("Coincident", 4, 2, 5, 1),
    Sketcher.Constraint("Coincident", 5, 2, 0, 1),
    Sketcher.Constraint("Coincident", 6, 2, 7, 1),
    Sketcher.Constraint("Coincident", 7, 2, 8, 1),
    Sketcher.Constraint("Coincident", 8, 2, 9, 1),
    Sketcher.Constraint("Coincident", 9, 2, 10, 1),
    Sketcher.Constraint("Coincident", 10, 2, 11, 1),
    Sketcher.Constraint("Coincident", 11, 2, 6, 1),
    Sketcher.Constraint("Vertical", 2),
    Sketcher.Constraint("Vertical", 5),
    Sketcher.Constraint("Vertical", 6),
    Sketcher.Constraint("Vertical", 9),
    Sketcher.Constraint("Symmetric", 4, 2, 6, 2, -1),
    Sketcher.Constraint("Symmetric", 3, 2, 7, 2, -1),
    Sketcher.Constraint("Symmetric", 2, 2, 8, 2, -1),
    Sketcher.Constraint("Symmetric", 0, 2, 10, 2, -1),
    Sketcher.Constraint("Parallel", 0, 3),
    Sketcher.Constraint("Parallel", 1, 4),
    Sketcher.Constraint("Parallel", 3, 7),
    Sketcher.Constraint("Parallel", 7, 10),
    Sketcher.Constraint("Parallel", 8, 11),
    Sketcher.Constraint("Horizontal", 2, 2, 4, 2),
    Sketcher.Constraint("Horizontal", 1, 2, 5, 2),
    Sketcher.Constraint("Angle", 0, Q("150 deg")),
    Sketcher.Constraint("DistanceX", 0, 2, -1, 1, Q("6 mm")),
    Sketcher.Constraint("DistanceY", 5, 2, 6, 2, Q("17 mm")),
    Sketcher.Constraint("DistanceX", 1, 2, -1, 1, Q("8.9 mm")),
    Sketcher.Constraint("DistanceY", 2, 2, 2, 1, Q("3.348632 mm")),
])
pocket3 = body.newObject("PartDesign::Pocket", "Pocket002")
pocket3.Profile = sketch10
pocket3.setExpression("Length", "Params.pocket3_length")

# Sketch on an angled plane
sketch11 = body.newObject("Sketcher::SketchObject", "Sketch010")
sketch11.Placement = App.Placement(App.Vector(14, 0, -8.082904), App.Rotation(App.Vector(0, 1, 0), App.Vector(0.5, 0, 0.866025404), App.Vector(0.866025404, 0, -0.5), "ZXY"))
sketch11.addGeometry([
    Part.Circle(App.Vector(-6, -8.5, 0), App.Vector(0, 0, 1), 1.6),
    Part.Circle(App.Vector(-6, 8.5, 0), App.Vector(0, 0, 1), 1.6),
], False)
sketch11.addConstraint([
    Sketcher.Constraint("Equal", 0, 1),
    Sketcher.Constraint("Symmetric", 0, 3, 1, 3, -1),
    Sketcher.Constraint("Diameter", 0, Q("3.3 mm")),
    Sketcher.Constraint("DistanceX", 0, 3, -1, 1, Q("6 mm")),
    Sketcher.Constraint("DistanceY", 0, 3, 1, 3, Q("17 mm")),
])
sketch11.setExpression("Constraints[2]", "Params.sketch11_diameter")
doc.recompute()
hole5 = body.newObject("PartDesign::Hole", "Hole004")
hole5.Profile = sketch11
hole5.ThreadType = "None"
hole5.setExpression("Diameter", "Params.hole5_diameter")
hole5.DepthType = "Dimension"
hole5.setExpression("Depth", "Params.hole5_depth")
hole5.DrillPoint = "Angled"
hole5.DrillPointAngle = 118

# Sketch on an angled plane
sketch12 = body.newObject("Sketcher::SketchObject", "Sketch011")
sketch12.Placement = App.Placement(App.Vector(14, 0, -8.082904), App.Rotation(App.Vector(0, 1, 0), App.Vector(0.5, 0, 0.866025404), App.Vector(0.866025404, 0, -0.5), "ZXY"))
sketch12.addGeometry([
    Part.Circle(App.Vector(-6, -8.5, 0), App.Vector(0, 0, 1), 3),
    Part.Circle(App.Vector(-6, 8.5, 0), App.Vector(0, 0, 1), 3),
], False)
sketch12.addConstraint([
    Sketcher.Constraint("Equal", 0, 1),
    Sketcher.Constraint("Symmetric", 0, 3, 1, 3, -1),
    Sketcher.Constraint("Diameter", 0, Q("6 mm")),
    Sketcher.Constraint("DistanceX", 0, 3, -1, 1, Q("6 mm")),
    Sketcher.Constraint("DistanceY", 0, 3, 1, 3, Q("17 mm")),
])
sketch12.setExpression("Constraints[2]", "Params.sketch12_diameter")
doc.recompute()
hole6 = body.newObject("PartDesign::Hole", "Hole005")
hole6.Profile = sketch12
hole6.ThreadType = "None"
hole6.setExpression("Diameter", "Params.hole6_diameter")
hole6.DepthType = "Dimension"
hole6.setExpression("Depth", "Params.hole6_depth")
hole6.DrillPoint = "Angled"
hole6.DrillPointAngle = 118

doc.recompute()
